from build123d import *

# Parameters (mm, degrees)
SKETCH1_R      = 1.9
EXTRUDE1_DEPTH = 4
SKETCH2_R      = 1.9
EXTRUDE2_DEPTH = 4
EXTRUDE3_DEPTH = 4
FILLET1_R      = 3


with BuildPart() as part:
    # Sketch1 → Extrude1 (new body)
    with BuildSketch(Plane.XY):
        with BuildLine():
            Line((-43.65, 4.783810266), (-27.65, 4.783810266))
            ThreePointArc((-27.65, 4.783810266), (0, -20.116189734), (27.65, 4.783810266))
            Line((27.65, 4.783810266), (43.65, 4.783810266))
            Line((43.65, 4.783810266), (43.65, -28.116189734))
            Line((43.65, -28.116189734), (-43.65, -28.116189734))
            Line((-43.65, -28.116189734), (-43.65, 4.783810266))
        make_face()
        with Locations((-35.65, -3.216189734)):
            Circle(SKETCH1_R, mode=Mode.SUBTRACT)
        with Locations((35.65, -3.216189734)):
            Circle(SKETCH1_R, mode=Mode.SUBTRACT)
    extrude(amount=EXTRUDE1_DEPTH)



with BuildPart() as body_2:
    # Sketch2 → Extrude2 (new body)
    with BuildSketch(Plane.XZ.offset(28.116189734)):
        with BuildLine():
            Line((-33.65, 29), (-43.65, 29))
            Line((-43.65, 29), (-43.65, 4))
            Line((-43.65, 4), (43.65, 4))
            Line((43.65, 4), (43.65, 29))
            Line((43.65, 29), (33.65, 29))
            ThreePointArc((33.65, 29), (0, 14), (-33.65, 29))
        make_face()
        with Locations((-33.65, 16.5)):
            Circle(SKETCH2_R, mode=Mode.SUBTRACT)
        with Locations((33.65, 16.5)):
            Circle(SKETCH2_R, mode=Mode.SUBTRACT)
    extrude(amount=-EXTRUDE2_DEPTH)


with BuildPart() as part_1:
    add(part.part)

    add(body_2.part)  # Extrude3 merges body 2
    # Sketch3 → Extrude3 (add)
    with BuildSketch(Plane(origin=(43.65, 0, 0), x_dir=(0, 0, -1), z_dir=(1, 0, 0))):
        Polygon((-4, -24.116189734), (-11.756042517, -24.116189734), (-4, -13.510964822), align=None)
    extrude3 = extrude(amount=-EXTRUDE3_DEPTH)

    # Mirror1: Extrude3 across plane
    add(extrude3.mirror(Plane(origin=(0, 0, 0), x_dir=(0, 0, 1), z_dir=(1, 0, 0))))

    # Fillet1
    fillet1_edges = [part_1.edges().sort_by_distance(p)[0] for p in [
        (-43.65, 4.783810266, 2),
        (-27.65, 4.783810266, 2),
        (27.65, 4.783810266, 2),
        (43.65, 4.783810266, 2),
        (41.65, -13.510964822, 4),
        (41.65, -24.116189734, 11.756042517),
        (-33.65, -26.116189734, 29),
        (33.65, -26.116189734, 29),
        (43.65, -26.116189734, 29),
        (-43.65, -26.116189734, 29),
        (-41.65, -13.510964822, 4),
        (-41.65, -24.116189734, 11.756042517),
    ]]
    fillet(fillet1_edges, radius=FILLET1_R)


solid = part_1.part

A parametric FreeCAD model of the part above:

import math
import FreeCAD as App
import Part
import Sketcher

V = App.Vector


def edges_at(feature, points):
    """Names of the edges that pass closest to the given points."""
    edges = feature.Shape.Edges
    near = lambda p: min(range(len(edges)), key=lambda i: edges[i].distToShape(Part.Vertex(*p))[0])
    return sorted({f"Edge{near(p) + 1}" for p in points})


def add_polygon(sketch, points):
    """Adds a closed chain of lines whose ends are joined by coincident constraints."""
    first, n = sketch.GeometryCount, len(points)
    for a, b in zip(points, points[1:] + points[:1]):
        sketch.addGeometry(Part.LineSegment(App.Vector(*a, 0), App.Vector(*b, 0)), False)
    for i in range(n):
        sketch.addConstraint(Sketcher.Constraint("Coincident", first + i, 2, first + (i + 1) % n, 1))

doc = App.newDocument("Part")
body = doc.addObject("PartDesign::Body", "Body")

sketch1 = body.newObject("Sketcher::SketchObject", "Sketch")
sketch1.AttachmentSupport = (doc.getObject("XY_Plane"), [""])
sketch1.MapMode = "FlatFace"
sketch1.addGeometry([
    Part.LineSegment(V(-27.6, 4.8, 0), V(-43.6, 4.8, 0)),
    Part.LineSegment(V(-43.6, 4.8, 0), V(-43.6, -28.1, 0)),
    Part.LineSegment(V(-43.6, -28.1, 0), V(43.6, -28.1, 0)),
    Part.LineSegment(V(43.6, -28.1, 0), V(43.6, 4.8, 0)),
    Part.LineSegment(V(43.6, 4.8, 0), V(27.6, 4.8, 0)),
    Part.ArcOfCircle(Part.Circle(V(0, 7.7, 0), V(0, 0, 1), 27.8), math.radians(-174), math.radians(-6)),
    Part.Circle(V(35.6, -3.2, 0), V(0, 0, 1), 1.9),
    Part.Circle(V(-35.6, -3.2, 0), V(0, 0, 1), 1.9),
], False)
sketch1.addConstraint([
    Sketcher.Constraint("Coincident", 0, 2, 1, 1),
    Sketcher.Constraint("Coincident", 1, 2, 2, 1),
    Sketcher.Constraint("Coincident", 2, 2, 3, 1),
    Sketcher.Constraint("Coincident", 3, 2, 4, 1),
    Sketcher.Constraint("Coincident", 4, 2, 5, 2),
    Sketcher.Constraint("Coincident", 5, 1, 0, 1),
    Sketcher.Constraint("Horizontal", 0),
    Sketcher.Constraint("Vertical", 1),
    Sketcher.Constraint("Horizontal", 2),
    Sketcher.Constraint("Vertical", 3),
    Sketcher.Constraint("Horizontal", 4),
    Sketcher.Constraint("Equal", 6, 7),
    Sketcher.Constraint("Symmetric", 6, 3, 7, 3, -2),
    Sketcher.Constraint("Symmetric", 0, 2, 3, 2, -2),
    Sketcher.Constraint("PointOnObject", 5, 3, -2),
    Sketcher.Constraint("Diameter", 6, 3.8),
    Sketcher.Constraint("DistanceX", 0, 2, 0, 1, 16.0),
    Sketcher.Constraint("DistanceX", 2, 1, 2, 2, 87.3),
    Sketcher.Constraint("DistanceY", 1, 2, 1, 1, 32.9),
    Sketcher.Constraint("DistanceX", 0, 2, 7, 3, 8.0),
    Sketcher.Constraint("DistanceY", 7, 3, 0, 2, 8.0),
    Sketcher.Constraint("Radius", 5, 27.801857),
    Sketcher.Constraint("DistanceY", 6, 3, -1, 1, 3.21619),
])
pad1 = body.newObject("PartDesign::Pad", "Pad")
pad1.Profile = sketch1
pad1.Length = 4
body2 = doc.addObject("PartDesign::Body", "Body001")

sketch2 = body2.newObject("Sketcher::SketchObject", "Sketch001")
sketch2.AttachmentSupport = (doc.getObject("XZ_Plane001"), [""])
sketch2.MapMode = "FlatFace"
sketch2.AttachmentOffset = App.Placement(V(0, 0, 28.11619), App.Rotation())
sketch2.addGeometry([
    Part.LineSegment(V(-33.6, 29, 0), V(-43.6, 29, 0)),
    Part.LineSegment(V(-43.6, 29, 0), V(-43.6, 4, 0)),
    Part.LineSegment(V(-43.6, 4, 0), V(43.6, 4, 0)),
    Part.LineSegment(V(43.6, 4, 0), V(43.6, 29, 0)),
    Part.LineSegment(V(43.6, 29, 0), V(33.6, 29, 0)),
    Part.ArcOfCircle(Part.Circle(V(0, 59.2, 0), V(0, 0, 1), 45.2), math.radians(-138), math.radians(-42)),
    Part.Circle(V(-33.6, 16.5, 0), V(0, 0, 1), 1.9),
    Part.Circle(V(33.6, 16.5, 0), V(0, 0, 1), 1.9),
], False)
sketch2.addConstraint([
    Sketcher.Constraint("Coincident", 0, 2, 1, 1),
    Sketcher.Constraint("Coincident", 1, 2, 2, 1),
    Sketcher.Constraint("Coincident", 2, 2, 3, 1),
    Sketcher.Constraint("Coincident", 3, 2, 4, 1),
    Sketcher.Constraint("Coincident", 4, 2, 5, 2),
    Sketcher.Constraint("Coincident", 5, 1, 0, 1),
    Sketcher.Constraint("Horizontal", 0),
    Sketcher.Constraint("Vertical", 1),
    Sketcher.Constraint("Horizontal", 2),
    Sketcher.Constraint("Vertical", 3),
    Sketcher.Constraint("Horizontal", 4),
    Sketcher.Constraint("Equal", 6, 7),
    Sketcher.Constraint("Symmetric", 6, 3, 7, 3, -2),
    Sketcher.Constraint("Symmetric", 0, 2, 3, 2, -2),
    Sketcher.Constraint("PointOnObject", 5, 3, -2),
    Sketcher.Constraint("Vertical", 7, 3, 4, 2),
    Sketcher.Constraint("Diameter", 6, 3.8),
    Sketcher.Constraint("DistanceX", 0, 2, 0, 1, 10.0),
    Sketcher.Constraint("DistanceY", 1, 2, 1, 1, 25.0),
    Sketcher.Constraint("DistanceX", 2, 1, 2, 2, 87.3),
    Sketcher.Constraint("DistanceY", -1, 1, 0, 2, 29.0),
    Sketcher.Constraint("DistanceY", -1, 1, 6, 3, 16.5),
    Sketcher.Constraint("Radius", 5, 45.244083),
])
pad2 = body2.newObject("PartDesign::Pad", "Pad001")
pad2.Profile = sketch2
pad2.Length = 4
pad2.Reversed = True
doc.recompute()

boolean = body.newObject("PartDesign::Boolean", "Boolean")
boolean.Type = "Fuse"
boolean.addObjects([body2])

sketch3 = body.newObject("Sketcher::SketchObject", "Sketch002")
sketch3.AttachmentSupport = (doc.getObject("YZ_Plane"), [""])
sketch3.MapMode = "FlatFace"
sketch3.AttachmentOffset = App.Placement(V(0, 0, 43.65), App.Rotation())
add_polygon(sketch3, [(-24, 12), (-24, 4), (-14, 4)])
sketch3.addConstraint([
    Sketcher.Constraint("Vertical", 0),
    Sketcher.Constraint("Horizontal", 1),
    Sketcher.Constraint("DistanceY", -1, 1, 0, 2, 4.0),
    Sketcher.Constraint("Distance", 2, 13.138759),
    Sketcher.Constraint("DistanceX", 1, 1, 1, 2, 10.605225),
    Sketcher.Constraint("DistanceX", 0, 2, -1, 1, 24.11619),
])
pad3 = body.newObject("PartDesign::Pad", "Pad002")
pad3.Profile = sketch3
pad3.Length = 4
pad3.Reversed = True
doc.recompute()

mirrored = body.newObject("PartDesign::Mirrored", "Mirrored")
mirrored.Originals = [pad3]
mirrored.MirrorPlane = (doc.getObject("YZ_Plane"), [""])
body.Tip = mirrored
doc.recompute()

fillet = body.newObject("PartDesign::Fillet", "Fillet")
fillet.Base = (mirrored, edges_at(mirrored, [
    (-43.65, 4.784, 2),
    (-27.65, 4.784, 2),
    (27.65, 4.784, 2),
    (43.65, 4.784, 2),
    (41.65, -13.511, 4),
    (41.65, -24.116, 11.756),
    (-33.65, -26.116, 29),
    (33.65, -26.116, 29),
    (43.65, -26.116, 29),
    (-43.65, -26.116, 29),
    (-41.65, -13.511, 4),
    (-41.65, -24.116, 11.756),
]))
fillet.Radius = 3

doc.recompute()
